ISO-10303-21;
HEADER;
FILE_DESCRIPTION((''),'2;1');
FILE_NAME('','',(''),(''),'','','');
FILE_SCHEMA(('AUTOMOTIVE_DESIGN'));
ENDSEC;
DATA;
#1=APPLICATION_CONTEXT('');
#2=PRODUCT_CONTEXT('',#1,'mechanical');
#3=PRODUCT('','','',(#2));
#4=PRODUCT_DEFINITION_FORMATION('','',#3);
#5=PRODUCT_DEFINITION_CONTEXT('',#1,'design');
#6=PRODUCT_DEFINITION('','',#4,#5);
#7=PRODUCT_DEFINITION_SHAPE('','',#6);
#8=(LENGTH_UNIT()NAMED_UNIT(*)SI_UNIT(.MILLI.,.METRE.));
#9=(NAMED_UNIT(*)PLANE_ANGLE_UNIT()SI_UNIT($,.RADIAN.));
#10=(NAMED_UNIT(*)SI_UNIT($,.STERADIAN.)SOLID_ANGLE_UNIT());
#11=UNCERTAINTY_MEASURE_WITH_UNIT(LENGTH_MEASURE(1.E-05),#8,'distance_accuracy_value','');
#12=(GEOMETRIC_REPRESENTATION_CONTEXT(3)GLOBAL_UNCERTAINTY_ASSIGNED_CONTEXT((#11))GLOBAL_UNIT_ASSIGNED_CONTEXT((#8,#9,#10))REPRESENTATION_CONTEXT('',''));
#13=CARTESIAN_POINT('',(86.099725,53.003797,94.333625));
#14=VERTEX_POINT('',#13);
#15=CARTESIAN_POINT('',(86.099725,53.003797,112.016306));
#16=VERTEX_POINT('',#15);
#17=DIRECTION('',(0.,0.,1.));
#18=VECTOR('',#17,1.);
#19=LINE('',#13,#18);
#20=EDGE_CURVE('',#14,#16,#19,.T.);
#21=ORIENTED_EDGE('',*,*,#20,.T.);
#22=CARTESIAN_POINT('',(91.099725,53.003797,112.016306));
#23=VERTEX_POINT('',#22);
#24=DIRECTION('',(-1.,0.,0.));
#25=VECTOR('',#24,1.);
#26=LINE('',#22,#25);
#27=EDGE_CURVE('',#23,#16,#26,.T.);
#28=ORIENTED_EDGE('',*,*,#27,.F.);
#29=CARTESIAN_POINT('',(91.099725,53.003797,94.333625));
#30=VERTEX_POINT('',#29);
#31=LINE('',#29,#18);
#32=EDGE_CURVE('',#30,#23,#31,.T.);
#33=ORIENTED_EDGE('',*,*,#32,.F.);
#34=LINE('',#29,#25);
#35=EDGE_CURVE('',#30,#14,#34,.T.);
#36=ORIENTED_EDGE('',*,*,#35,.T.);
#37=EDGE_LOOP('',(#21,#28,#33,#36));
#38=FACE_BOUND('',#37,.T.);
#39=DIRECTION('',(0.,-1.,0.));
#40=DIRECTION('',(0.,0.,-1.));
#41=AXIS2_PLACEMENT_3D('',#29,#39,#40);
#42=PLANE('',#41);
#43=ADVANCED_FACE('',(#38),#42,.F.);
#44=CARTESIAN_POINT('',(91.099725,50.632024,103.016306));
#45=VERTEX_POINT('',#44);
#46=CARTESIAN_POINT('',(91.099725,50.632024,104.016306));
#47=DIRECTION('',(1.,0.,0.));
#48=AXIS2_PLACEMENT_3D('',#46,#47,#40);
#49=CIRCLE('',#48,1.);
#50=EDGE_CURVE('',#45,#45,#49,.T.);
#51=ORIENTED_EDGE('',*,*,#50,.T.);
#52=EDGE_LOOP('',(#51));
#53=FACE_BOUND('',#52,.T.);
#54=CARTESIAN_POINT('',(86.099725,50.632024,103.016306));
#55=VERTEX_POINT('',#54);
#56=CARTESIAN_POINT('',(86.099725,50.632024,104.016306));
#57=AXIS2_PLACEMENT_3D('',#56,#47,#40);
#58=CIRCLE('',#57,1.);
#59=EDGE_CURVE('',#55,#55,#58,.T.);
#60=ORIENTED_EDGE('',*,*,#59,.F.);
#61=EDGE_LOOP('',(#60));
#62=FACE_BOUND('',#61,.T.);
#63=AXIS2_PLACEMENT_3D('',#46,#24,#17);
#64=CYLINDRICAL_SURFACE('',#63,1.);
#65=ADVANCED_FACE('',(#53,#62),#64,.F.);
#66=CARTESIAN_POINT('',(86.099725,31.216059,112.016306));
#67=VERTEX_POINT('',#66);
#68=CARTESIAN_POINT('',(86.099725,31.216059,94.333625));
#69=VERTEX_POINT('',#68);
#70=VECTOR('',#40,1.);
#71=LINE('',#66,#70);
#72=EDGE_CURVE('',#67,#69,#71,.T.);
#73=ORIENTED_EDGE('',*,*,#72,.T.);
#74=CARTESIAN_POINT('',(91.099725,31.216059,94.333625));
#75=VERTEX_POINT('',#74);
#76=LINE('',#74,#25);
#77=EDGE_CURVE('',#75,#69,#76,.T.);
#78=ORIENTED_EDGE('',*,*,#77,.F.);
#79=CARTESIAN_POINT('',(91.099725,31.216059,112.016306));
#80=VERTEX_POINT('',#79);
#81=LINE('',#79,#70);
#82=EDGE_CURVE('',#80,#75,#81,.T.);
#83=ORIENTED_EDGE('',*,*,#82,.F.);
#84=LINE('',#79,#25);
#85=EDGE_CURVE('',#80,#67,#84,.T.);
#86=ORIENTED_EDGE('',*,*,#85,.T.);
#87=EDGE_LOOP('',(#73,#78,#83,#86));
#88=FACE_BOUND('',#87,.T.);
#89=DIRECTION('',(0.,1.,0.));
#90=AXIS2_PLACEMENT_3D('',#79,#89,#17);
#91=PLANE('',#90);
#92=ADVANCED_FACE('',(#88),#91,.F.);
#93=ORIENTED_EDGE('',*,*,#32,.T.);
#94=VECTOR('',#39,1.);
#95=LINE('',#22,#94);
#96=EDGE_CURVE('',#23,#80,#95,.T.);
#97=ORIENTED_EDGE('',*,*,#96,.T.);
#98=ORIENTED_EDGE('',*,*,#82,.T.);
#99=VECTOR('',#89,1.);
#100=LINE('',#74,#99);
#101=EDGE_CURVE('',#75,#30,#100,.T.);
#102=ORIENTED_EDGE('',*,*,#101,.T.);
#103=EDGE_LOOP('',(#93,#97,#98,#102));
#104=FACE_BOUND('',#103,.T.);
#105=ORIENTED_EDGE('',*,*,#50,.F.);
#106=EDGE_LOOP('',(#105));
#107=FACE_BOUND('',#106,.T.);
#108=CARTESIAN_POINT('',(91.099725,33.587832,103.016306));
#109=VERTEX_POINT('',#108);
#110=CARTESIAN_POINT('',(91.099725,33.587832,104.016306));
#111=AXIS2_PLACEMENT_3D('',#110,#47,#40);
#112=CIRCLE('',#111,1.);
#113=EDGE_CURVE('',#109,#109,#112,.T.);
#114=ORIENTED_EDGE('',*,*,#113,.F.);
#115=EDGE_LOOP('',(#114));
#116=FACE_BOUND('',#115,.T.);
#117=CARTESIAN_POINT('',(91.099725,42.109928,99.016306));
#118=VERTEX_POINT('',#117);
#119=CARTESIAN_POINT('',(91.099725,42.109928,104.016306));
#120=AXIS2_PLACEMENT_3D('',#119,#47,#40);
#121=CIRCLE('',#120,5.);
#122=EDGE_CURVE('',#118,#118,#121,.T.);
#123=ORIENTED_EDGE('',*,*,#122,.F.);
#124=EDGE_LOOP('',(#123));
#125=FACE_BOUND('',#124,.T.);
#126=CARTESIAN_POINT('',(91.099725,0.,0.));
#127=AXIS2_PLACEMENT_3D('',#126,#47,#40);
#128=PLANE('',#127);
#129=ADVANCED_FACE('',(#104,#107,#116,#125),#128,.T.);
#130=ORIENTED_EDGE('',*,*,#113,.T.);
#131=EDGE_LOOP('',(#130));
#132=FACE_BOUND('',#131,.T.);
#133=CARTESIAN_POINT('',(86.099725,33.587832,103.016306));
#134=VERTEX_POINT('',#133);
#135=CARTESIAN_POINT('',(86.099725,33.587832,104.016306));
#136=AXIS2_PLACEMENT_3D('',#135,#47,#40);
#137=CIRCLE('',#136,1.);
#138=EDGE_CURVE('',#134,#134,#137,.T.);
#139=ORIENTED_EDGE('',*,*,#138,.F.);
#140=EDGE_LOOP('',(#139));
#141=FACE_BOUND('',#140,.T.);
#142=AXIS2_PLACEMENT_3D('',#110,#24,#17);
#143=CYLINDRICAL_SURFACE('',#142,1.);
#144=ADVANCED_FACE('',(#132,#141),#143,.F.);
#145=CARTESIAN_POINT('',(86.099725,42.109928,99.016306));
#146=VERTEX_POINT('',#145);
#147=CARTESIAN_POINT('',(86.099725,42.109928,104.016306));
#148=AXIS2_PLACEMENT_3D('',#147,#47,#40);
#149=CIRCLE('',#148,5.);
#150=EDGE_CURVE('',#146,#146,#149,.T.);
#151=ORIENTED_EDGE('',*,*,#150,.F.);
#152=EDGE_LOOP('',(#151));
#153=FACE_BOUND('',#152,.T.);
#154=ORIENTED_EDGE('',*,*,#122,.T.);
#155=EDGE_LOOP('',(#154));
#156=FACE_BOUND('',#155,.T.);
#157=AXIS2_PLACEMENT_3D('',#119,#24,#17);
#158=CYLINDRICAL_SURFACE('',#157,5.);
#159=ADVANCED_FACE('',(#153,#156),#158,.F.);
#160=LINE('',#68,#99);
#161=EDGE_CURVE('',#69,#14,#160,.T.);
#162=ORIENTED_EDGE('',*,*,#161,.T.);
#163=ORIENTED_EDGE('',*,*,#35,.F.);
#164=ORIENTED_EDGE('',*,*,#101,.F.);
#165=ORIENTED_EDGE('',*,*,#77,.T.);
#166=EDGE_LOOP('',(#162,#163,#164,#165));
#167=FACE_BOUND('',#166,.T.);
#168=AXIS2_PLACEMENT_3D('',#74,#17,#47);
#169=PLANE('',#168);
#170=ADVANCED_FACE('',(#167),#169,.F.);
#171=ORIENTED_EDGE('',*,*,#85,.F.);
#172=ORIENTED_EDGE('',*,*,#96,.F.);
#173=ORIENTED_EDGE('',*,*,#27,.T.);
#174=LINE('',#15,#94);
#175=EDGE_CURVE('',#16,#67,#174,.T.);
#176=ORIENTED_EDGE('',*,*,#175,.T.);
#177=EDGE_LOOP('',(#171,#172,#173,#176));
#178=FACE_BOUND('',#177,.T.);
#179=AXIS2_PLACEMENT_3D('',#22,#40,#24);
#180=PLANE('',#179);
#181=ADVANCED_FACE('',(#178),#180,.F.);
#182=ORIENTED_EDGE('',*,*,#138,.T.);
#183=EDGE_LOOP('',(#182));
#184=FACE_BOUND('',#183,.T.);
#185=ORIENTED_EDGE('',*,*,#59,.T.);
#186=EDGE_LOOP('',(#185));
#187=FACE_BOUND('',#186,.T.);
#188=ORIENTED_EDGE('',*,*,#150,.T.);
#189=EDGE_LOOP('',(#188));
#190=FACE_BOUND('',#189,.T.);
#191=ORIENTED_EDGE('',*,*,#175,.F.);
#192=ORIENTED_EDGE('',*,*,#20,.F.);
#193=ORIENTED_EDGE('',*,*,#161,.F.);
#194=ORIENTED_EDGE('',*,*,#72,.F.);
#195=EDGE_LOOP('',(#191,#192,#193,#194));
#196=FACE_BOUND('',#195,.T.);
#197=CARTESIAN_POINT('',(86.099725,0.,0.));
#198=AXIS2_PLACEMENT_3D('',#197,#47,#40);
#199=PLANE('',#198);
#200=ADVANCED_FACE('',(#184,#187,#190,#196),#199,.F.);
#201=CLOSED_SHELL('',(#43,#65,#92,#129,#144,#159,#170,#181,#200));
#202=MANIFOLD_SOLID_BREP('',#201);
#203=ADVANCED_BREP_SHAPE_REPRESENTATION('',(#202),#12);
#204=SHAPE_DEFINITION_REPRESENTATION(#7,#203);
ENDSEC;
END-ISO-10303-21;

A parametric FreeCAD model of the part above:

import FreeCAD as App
import Part
import Sketcher

V = App.Vector
Q = App.Units.Quantity


def add_polygon(sketch, points):
    """Adds a closed chain of lines whose ends are joined by coincident constraints."""
    first, n = sketch.GeometryCount, len(points)
    for a, b in zip(points, points[1:] + points[:1]):
        sketch.addGeometry(Part.LineSegment(App.Vector(*a, 0), App.Vector(*b, 0)), False)
    for i in range(n):
        sketch.addConstraint(Sketcher.Constraint("Coincident", first + i, 2, first + (i + 1) % n, 1))

doc = App.newDocument("Part")
params = doc.addObject("Spreadsheet::Sheet", "Params")
for row, (alias, value) in enumerate([
    ("sketch1_diameter", "2 mm"),
    ("sketch1_diameter2", "10 mm"),
    ("pad1_length", "5 mm"),
], start=1):
    params.set(f"A{row}", alias)
    params.set(f"B{row}", "=" + value)
    params.setAlias(f"B{row}", alias)

body = doc.addObject("PartDesign::Body", "Body")

# Sketch on YZ plane
sketch1 = body.newObject("Sketcher::SketchObject", "Sketch")
sketch1.AttachmentSupport = (doc.getObject("YZ_Plane"), [""])
sketch1.MapMode = "FlatFace"
sketch1.AttachmentOffset = App.Placement(V(0, 0, 86.099725), App.Rotation())
add_polygon(sketch1, [(53.003797, 112.016306), (31.216059, 112.016306), (31.216059, 94.333625), (53.003797, 94.333625)])  # lines 0-3
sketch1.addGeometry(Part.Circle(V(33.587832, 104.016306, 0), V(0, 0, 1), 1), False)  # 4
sketch1.addGeometry(Part.Circle(V(42.109928, 104.016306, 0), V(0, 0, 1), 5), False)  # 5
sketch1.addGeometry(Part.Circle(V(50.632024, 104.016306, 0), V(0, 0, 1), 1), False)  # 6
sketch1.addConstraint(Sketcher.Constraint("Horizontal", 0))
sketch1.addConstraint(Sketcher.Constraint("Vertical", 1))
sketch1.addConstraint(Sketcher.Constraint("Horizontal", 2))
sketch1.addConstraint(Sketcher.Constraint("Vertical", 3))
sketch1.addConstraint(Sketcher.Constraint("Equal", 4, 6))
sketch1.addConstraint(Sketcher.Constraint("Horizontal", 4, 3, 5, 3))
sketch1.addConstraint(Sketcher.Constraint("Horizontal", 5, 3, 6, 3))
sketch1.addConstraint(Sketcher.Constraint("Diameter", 4, Q("2 mm")))
sketch1.addConstraint(Sketcher.Constraint("Diameter", 5, Q("10 mm")))
sketch1.addConstraint(Sketcher.Constraint("DistanceY", 4, 3, 0, 2, Q("8 mm")))
sketch1.addConstraint(Sketcher.Constraint("DistanceY", 1, 2, 1, 1, Q("17.682681 mm")))
sketch1.addConstraint(Sketcher.Constraint("DistanceX", 0, 2, 0, 1, Q("21.787738 mm")))
sketch1.addConstraint(Sketcher.Constraint("DistanceX", -1, 1, 4, 3, Q("33.587832 mm")))
sketch1.addConstraint(Sketcher.Constraint("DistanceX", -1, 1, 0, 2, Q("31.216059 mm")))
sketch1.addConstraint(Sketcher.Constraint("DistanceX", 0, 2, 5, 3, Q("10.893869 mm")))
sketch1.addConstraint(Sketcher.Constraint("DistanceY", -1, 1, 4, 3, Q("104.016306 mm")))
sketch1.addConstraint(Sketcher.Constraint("DistanceX", -1, 1, 6, 3, Q("50.632024 mm")))
sketch1.setExpression("Constraints[11]", "Params.sketch1_diameter")
sketch1.setExpression("Constraints[12]", "Params.sketch1_diameter2")
pad1 = body.newObject("PartDesign::Pad", "Pad")
pad1.Profile = sketch1
pad1.setExpression("Length", "Params.pad1_length")

doc.recompute()
